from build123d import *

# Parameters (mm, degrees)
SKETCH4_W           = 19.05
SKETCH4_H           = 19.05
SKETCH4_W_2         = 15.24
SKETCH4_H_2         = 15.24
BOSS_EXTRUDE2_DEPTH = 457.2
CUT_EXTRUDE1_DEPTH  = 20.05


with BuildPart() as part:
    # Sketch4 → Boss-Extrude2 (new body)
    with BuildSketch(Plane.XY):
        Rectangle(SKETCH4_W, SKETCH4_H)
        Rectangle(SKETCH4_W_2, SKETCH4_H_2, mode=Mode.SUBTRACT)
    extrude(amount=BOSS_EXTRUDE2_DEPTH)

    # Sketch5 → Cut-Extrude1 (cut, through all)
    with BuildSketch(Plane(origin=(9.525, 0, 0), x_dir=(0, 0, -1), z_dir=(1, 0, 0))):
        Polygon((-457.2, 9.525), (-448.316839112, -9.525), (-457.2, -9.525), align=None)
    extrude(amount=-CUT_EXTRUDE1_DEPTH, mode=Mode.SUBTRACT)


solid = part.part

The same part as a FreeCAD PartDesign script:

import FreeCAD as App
import Part
import Sketcher

V = App.Vector
Q = App.Units.Quantity


def add_polygon(sketch, points):
    """Adds a closed chain of lines whose ends are joined by coincident constraints."""
    first, n = sketch.GeometryCount, len(points)
    for a, b in zip(points, points[1:] + points[:1]):
        sketch.addGeometry(Part.LineSegment(App.Vector(*a, 0), App.Vector(*b, 0)), False)
    for i in range(n):
        sketch.addConstraint(Sketcher.Constraint("Coincident", first + i, 2, first + (i + 1) % n, 1))

doc = App.newDocument("Part")
body = doc.addObject("PartDesign::Body", "Body")

# Sketch on XY plane
sketch1 = body.newObject("Sketcher::SketchObject", "Sketch")
sketch1.AttachmentSupport = (doc.getObject("XY_Plane"), [""])
sketch1.MapMode = "FlatFace"
add_polygon(sketch1, [(-10, 10), (-10, -10), (10, -10), (10, 10)])  # lines 0-3
add_polygon(sketch1, [(8, -8), (-8, -8), (-8, 8), (8, 8)])  # lines 4-7
sketch1.addConstraint([
    Sketcher.Constraint("Vertical", 0),
    Sketcher.Constraint("Horizontal", 1),
    Sketcher.Constraint("Vertical", 2),
    Sketcher.Constraint("Horizontal", 3),
    Sketcher.Constraint("Horizontal", 4),
    Sketcher.Constraint("Vertical", 5),
    Sketcher.Constraint("Horizontal", 6),
    Sketcher.Constraint("Vertical", 7),
    Sketcher.Constraint("Symmetric", 0, 2, 2, 2, -1, 1),
    Sketcher.Constraint("Symmetric", 4, 2, 6, 2, -1, 1),
    Sketcher.Constraint("Equal", 3, 0),
    Sketcher.Constraint("Equal", 6, 5),
    Sketcher.Constraint("DistanceX", 4, 2, 4, 1, Q("0.6 in")),
    Sketcher.Constraint("DistanceX", 1, 1, 1, 2, Q("0.75 in")),
])
pad1 = body.newObject("PartDesign::Pad", "Pad")
pad1.Profile = sketch1
pad1.Length = Q("18 in")

# Sketch on YZ plane
sketch2 = body.newObject("Sketcher::SketchObject", "Sketch001")
sketch2.AttachmentSupport = (doc.getObject("YZ_Plane"), [""])
sketch2.MapMode = "FlatFace"
sketch2.AttachmentOffset = App.Placement(V(0, 0, 0.375 * 25.4), App.Rotation())
add_polygon(sketch2, [(-10, 448), (10, 457), (-10, 457)])  # lines 0-2
sketch2.addConstraint([
    Sketcher.Constraint("Horizontal", 1),
    Sketcher.Constraint("Vertical", 2),
    Sketcher.Constraint("DistanceY", -1, 1, 0, 2, Q("18 in")),
    Sketcher.Constraint("Angle", 0, Q("25 deg")),
    Sketcher.Constraint("DistanceX", 1, 2, 1, 1, Q("0.75 in")),
    Sketcher.Constraint("DistanceX", -1, 1, 0, 2, Q("0.375 in")),
])
pocket1 = body.newObject("PartDesign::Pocket", "Pocket")
pocket1.Profile = sketch2
pocket1.Type = "ThroughAll"

doc.recompute()
